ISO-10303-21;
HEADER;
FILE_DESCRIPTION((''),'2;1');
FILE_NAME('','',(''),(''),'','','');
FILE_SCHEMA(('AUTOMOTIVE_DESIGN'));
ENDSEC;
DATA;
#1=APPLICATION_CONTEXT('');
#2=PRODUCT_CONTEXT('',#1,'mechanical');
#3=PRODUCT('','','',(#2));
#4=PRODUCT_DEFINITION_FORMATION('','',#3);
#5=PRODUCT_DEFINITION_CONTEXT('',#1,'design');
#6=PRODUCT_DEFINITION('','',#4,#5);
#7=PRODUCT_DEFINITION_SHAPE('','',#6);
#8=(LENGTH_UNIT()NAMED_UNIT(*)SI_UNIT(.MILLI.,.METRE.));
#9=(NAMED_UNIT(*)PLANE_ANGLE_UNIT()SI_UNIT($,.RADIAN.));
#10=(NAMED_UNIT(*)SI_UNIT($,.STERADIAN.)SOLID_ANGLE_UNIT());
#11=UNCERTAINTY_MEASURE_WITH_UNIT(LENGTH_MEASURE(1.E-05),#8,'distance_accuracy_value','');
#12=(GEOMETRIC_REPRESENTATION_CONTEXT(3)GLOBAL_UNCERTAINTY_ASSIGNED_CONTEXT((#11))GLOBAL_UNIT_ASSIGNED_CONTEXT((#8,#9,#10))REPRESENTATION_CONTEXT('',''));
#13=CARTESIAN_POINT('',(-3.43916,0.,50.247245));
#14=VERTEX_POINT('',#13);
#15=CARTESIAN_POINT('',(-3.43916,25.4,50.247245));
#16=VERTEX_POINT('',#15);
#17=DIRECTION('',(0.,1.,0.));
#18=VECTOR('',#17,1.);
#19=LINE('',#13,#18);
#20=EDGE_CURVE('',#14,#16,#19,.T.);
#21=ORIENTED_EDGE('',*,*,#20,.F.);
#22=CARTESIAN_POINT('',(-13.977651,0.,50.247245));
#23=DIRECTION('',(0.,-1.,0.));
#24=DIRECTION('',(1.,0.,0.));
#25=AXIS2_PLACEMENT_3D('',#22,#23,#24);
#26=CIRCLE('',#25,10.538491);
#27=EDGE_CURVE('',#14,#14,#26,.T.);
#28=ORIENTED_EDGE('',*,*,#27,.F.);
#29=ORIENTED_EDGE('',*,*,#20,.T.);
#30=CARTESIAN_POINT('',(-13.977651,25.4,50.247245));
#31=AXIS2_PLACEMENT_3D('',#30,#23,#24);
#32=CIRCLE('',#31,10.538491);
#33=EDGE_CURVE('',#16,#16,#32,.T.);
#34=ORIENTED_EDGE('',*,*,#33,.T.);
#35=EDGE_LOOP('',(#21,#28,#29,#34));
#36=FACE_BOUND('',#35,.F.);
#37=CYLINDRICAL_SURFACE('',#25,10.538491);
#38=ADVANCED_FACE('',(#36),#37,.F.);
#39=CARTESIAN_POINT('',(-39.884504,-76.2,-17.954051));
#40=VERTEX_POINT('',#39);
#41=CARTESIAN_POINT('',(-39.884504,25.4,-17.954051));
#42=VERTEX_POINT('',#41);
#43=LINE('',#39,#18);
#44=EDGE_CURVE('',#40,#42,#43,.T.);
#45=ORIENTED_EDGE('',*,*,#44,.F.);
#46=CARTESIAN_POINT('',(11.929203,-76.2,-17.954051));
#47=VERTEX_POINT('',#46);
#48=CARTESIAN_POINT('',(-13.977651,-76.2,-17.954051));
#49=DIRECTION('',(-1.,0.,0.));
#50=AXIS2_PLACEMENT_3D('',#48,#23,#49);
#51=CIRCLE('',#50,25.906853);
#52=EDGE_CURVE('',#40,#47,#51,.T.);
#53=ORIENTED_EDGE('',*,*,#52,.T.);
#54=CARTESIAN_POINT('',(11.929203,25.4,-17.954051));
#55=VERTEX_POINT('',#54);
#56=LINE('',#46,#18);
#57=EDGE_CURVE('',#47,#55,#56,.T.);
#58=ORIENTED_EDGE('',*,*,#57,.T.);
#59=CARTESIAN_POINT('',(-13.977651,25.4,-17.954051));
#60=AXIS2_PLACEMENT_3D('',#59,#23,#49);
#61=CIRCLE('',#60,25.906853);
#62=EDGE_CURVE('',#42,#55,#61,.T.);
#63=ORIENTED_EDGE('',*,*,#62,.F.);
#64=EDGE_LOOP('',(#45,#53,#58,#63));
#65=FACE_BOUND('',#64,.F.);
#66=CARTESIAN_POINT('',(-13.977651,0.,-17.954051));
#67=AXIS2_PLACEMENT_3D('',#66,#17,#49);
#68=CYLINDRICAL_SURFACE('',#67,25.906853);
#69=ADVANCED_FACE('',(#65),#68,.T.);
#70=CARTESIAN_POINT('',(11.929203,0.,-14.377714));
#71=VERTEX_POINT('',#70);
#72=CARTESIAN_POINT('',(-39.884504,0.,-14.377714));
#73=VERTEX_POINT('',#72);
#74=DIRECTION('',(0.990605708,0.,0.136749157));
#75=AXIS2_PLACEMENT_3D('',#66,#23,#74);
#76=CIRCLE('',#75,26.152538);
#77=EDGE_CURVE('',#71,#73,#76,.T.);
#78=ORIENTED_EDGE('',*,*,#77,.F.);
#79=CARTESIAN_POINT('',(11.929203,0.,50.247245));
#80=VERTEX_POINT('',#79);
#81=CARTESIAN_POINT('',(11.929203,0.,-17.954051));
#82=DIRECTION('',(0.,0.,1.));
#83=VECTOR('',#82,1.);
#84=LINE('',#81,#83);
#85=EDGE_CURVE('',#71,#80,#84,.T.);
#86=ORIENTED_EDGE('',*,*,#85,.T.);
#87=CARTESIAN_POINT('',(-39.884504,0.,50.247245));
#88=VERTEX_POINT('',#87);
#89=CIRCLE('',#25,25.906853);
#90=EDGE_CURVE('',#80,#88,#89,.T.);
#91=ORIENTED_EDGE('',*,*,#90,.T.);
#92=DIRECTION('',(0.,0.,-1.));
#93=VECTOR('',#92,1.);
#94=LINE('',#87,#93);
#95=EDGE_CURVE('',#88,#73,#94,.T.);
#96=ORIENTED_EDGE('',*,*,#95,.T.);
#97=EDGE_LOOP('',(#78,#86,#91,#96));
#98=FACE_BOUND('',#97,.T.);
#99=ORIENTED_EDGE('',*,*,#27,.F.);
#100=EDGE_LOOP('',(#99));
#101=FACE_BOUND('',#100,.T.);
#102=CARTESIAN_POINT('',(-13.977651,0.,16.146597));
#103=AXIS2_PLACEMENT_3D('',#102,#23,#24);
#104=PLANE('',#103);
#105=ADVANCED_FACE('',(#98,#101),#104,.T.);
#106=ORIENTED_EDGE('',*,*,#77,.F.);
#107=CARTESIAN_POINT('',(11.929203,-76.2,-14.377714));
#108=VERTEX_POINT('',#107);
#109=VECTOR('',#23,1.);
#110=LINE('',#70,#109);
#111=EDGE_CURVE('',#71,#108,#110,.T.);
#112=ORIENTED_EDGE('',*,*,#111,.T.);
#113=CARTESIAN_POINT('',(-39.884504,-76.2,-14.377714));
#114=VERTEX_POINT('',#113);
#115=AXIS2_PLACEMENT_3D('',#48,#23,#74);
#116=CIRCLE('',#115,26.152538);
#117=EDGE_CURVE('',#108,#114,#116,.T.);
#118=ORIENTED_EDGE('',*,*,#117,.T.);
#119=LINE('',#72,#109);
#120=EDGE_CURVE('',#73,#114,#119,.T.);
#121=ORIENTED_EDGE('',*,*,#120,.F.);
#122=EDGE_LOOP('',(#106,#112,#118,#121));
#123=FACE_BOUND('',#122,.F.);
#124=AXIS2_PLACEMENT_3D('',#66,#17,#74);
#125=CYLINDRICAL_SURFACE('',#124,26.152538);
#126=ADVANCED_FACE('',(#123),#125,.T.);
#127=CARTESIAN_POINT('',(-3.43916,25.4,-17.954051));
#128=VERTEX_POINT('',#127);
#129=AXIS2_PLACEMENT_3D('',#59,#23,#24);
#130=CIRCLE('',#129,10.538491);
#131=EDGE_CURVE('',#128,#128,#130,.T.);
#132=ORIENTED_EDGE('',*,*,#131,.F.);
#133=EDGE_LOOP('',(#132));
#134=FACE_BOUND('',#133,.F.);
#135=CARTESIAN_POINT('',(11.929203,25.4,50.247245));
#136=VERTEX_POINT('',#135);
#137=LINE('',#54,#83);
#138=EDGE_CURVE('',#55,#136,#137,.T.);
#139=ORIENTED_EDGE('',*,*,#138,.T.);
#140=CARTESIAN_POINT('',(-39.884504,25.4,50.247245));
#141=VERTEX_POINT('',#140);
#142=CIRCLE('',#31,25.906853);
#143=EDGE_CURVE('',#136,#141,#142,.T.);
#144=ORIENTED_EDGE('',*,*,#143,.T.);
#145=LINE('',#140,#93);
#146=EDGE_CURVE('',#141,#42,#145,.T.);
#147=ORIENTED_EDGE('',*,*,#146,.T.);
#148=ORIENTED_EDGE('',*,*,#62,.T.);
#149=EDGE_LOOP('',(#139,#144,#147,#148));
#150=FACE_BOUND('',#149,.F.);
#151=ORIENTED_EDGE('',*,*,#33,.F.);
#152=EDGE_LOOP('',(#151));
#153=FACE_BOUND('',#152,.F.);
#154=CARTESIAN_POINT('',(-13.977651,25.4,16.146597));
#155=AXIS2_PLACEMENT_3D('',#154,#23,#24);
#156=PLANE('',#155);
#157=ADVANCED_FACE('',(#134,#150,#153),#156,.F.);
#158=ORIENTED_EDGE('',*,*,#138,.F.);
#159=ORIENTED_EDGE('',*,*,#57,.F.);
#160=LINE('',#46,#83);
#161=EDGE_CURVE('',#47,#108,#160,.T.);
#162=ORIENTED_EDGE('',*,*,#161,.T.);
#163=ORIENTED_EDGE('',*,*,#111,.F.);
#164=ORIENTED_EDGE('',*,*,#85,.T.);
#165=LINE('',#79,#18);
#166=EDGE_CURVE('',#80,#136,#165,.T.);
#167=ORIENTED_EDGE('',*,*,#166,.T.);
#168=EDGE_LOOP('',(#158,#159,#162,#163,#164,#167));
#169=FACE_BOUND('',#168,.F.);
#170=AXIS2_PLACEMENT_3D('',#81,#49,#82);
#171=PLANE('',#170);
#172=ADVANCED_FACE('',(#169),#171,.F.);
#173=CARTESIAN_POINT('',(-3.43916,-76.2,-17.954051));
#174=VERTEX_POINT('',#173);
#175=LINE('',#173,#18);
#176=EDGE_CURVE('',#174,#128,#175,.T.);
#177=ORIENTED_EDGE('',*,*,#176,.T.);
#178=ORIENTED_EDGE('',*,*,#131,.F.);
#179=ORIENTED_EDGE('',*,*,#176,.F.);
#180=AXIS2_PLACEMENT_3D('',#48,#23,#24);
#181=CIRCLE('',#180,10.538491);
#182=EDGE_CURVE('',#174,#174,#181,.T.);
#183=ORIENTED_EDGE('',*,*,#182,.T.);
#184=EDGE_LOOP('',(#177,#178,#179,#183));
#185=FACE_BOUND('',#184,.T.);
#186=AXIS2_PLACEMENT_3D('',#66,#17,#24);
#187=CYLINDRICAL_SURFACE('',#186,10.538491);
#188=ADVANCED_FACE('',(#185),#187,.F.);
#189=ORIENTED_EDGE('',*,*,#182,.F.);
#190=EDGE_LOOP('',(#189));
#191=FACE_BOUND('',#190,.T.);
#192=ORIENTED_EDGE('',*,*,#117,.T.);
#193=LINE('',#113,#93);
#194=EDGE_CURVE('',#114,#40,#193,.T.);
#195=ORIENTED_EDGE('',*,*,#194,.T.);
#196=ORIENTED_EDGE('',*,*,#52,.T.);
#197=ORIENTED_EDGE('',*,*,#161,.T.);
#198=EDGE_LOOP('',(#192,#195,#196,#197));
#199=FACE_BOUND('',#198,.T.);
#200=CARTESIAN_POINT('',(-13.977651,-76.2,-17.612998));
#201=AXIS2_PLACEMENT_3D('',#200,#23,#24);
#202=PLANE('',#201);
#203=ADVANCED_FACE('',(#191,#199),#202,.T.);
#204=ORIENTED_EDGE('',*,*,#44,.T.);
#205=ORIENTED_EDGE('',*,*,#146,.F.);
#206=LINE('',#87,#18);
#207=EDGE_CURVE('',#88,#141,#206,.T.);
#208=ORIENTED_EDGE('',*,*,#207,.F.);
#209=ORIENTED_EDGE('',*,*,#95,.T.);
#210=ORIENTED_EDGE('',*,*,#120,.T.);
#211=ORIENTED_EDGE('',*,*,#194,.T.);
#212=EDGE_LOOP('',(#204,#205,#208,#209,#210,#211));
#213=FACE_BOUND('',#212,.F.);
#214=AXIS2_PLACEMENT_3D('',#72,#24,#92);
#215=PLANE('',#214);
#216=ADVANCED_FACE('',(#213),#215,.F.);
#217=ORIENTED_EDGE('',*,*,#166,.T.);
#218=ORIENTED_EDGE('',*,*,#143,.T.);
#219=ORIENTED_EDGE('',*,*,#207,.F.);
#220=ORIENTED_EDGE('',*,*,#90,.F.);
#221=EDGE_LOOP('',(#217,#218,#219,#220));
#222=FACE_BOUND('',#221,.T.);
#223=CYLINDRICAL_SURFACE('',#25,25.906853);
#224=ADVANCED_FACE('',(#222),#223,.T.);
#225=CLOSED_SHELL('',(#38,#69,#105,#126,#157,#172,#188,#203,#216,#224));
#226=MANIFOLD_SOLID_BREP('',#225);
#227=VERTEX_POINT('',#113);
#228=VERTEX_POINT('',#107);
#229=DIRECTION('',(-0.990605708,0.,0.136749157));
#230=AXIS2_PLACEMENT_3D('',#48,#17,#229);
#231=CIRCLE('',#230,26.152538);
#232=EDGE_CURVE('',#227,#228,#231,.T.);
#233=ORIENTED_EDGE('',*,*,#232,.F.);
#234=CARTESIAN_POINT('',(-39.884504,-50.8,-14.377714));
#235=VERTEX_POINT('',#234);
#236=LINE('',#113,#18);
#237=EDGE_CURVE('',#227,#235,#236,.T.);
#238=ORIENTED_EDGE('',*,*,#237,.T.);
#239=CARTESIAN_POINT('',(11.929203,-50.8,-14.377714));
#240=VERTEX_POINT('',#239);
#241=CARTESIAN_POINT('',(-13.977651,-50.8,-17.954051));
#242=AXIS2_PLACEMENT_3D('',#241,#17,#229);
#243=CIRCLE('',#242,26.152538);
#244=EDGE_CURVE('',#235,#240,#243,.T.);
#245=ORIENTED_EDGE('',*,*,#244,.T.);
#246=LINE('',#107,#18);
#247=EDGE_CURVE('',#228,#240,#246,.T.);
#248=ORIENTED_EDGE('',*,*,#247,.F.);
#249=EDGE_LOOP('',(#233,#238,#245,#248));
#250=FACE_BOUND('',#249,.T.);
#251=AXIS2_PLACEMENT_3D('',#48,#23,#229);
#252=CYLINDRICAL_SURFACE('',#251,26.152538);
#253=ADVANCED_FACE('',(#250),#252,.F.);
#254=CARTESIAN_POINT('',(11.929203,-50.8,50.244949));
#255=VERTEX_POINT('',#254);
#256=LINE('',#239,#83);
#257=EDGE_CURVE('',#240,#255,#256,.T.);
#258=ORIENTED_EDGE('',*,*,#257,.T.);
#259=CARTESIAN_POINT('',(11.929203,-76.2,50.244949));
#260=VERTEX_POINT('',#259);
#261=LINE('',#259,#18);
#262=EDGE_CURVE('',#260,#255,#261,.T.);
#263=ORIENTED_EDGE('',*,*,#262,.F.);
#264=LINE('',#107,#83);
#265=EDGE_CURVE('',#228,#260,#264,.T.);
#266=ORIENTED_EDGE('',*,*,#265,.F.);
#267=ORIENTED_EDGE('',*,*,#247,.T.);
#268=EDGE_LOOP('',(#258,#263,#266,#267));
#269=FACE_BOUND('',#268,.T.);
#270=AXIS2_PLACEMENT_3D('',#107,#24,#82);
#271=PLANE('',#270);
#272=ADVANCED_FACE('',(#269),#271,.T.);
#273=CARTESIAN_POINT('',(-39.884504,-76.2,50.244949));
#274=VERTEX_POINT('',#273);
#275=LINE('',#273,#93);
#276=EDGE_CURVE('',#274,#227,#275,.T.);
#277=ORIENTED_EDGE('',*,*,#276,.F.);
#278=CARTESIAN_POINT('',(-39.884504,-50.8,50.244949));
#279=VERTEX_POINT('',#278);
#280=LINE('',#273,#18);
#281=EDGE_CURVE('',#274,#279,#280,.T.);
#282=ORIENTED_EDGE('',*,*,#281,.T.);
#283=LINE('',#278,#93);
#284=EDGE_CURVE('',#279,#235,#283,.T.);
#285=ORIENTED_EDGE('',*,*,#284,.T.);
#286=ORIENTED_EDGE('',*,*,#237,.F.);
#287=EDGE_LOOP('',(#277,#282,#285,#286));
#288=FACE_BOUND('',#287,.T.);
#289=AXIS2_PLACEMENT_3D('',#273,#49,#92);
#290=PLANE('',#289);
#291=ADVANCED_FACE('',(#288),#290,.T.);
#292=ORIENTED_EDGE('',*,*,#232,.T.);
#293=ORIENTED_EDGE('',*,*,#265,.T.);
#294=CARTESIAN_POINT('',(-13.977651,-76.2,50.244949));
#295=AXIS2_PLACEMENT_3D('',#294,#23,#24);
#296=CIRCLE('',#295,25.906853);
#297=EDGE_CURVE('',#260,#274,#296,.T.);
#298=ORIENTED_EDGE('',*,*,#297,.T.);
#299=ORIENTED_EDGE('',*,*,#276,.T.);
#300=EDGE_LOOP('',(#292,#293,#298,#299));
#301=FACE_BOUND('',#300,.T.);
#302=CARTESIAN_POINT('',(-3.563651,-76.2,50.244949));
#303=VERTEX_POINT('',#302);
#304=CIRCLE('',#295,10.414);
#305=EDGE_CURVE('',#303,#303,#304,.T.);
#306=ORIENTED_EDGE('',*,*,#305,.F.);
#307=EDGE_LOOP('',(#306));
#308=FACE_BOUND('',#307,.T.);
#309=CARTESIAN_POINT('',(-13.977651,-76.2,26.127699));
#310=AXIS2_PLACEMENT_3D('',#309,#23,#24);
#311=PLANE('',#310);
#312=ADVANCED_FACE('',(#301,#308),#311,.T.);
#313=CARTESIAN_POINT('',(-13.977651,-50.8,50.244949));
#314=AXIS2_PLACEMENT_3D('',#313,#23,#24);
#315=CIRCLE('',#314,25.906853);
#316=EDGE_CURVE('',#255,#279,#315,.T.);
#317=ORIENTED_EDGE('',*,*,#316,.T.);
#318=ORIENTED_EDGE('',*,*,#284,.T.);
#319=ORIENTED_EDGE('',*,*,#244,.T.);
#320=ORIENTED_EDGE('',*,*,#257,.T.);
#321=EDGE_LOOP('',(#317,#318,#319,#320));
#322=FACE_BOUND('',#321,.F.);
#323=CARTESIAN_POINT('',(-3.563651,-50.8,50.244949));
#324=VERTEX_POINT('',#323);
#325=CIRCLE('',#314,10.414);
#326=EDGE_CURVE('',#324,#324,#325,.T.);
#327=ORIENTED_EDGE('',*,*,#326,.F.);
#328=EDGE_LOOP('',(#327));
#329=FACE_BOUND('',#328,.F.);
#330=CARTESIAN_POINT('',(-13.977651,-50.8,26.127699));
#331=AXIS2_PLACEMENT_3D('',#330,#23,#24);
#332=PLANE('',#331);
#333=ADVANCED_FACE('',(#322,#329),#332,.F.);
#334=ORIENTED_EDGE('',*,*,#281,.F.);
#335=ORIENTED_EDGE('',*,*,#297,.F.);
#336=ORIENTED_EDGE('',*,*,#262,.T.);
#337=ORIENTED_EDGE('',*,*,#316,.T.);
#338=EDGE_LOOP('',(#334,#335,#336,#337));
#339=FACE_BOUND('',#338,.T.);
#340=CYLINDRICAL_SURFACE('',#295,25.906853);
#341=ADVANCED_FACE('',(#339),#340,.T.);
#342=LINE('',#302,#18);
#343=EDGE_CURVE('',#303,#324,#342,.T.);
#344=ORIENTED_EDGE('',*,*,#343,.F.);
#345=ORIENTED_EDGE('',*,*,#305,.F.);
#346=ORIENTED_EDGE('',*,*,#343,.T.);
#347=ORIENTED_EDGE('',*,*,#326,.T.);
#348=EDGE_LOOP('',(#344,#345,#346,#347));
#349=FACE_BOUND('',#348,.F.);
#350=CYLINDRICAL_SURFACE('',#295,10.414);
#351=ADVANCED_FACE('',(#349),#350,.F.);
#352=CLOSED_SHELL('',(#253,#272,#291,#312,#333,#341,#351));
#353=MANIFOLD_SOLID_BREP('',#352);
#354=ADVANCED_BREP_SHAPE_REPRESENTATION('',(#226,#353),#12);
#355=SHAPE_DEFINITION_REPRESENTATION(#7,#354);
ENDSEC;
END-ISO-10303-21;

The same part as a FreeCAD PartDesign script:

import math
import FreeCAD as App
import Part
import Sketcher
from FreeCAD import Vector
Q = App.Units.Quantity

doc = App.newDocument("Part")
body = doc.addObject("PartDesign::Body", "Body")

sketch1 = doc.addObject("Sketcher::SketchObject", "Sketch")
body.addObject(sketch1)
sketch1.AttachmentSupport = (doc.XZ_Plane, [""])
sketch1.MapMode = "FlatFace"
sketch1.addGeometry([
    Part.LineSegment(Vector(-39.884504, 50.247245, 0), Vector(-39.884504, -17.954051, 0)),
    Part.ArcOfCircle(Part.Circle(Vector(-13.977651, -17.954051, 0), Vector(0, 0, 1), 25.906853), math.radians(180), math.radians(360)),
    Part.LineSegment(Vector(11.929203, -17.954051, 0), Vector(11.929203, 50.247245, 0)),
    Part.ArcOfCircle(Part.Circle(Vector(-13.977651, 50.247245, 0), Vector(0, 0, 1), 25.906853), math.radians(0), math.radians(180)),
    Part.Circle(Vector(-13.977651, -17.954051, 0), Vector(0, 0, 1), 10.538491),
    Part.Circle(Vector(-13.977651, 50.247245, 0), Vector(0, 0, 1), 10.538491),
], False)
sketch1.addConstraint([
    Sketcher.Constraint("Tangent", 0, 2, 1, 1),
    Sketcher.Constraint("Tangent", 1, 2, 2, 1),
    Sketcher.Constraint("Tangent", 2, 2, 3, 1),
    Sketcher.Constraint("Tangent", 3, 2, 0, 1),
    Sketcher.Constraint("Vertical", 0),
    Sketcher.Constraint("Vertical", 2),
    Sketcher.Constraint("Coincident", 4, 3, 1, 3),
    Sketcher.Constraint("Coincident", 5, 3, 3, 3),
    Sketcher.Constraint("Equal", 4, 5),
    Sketcher.Constraint("Diameter", 4, 21.076982),
    Sketcher.Constraint("Radius", 1, 25.906853),
    Sketcher.Constraint("DistanceY", 0, 2, 0, 1, 68.201296),
    Sketcher.Constraint("DistanceX", 1, 3, -1, 1, 13.977651),
    Sketcher.Constraint("DistanceY", 1, 3, -1, 1, 17.954051),
])
pad1 = doc.addObject("PartDesign::Pad", "Pad")
body.addObject(pad1)
pad1.Profile = sketch1
pad1.Length = Q("1 in")
pad1.Reversed = True

sketch2 = doc.addObject("Sketcher::SketchObject", "Sketch001")
body.addObject(sketch2)
sketch2.AttachmentSupport = (doc.XZ_Plane, [""])
sketch2.MapMode = "FlatFace"
sketch2.addGeometry([
    Part.LineSegment(Vector(11.929203, -17.954051, 0), Vector(11.929203, -14.377714, 0)),
    Part.ArcOfCircle(Part.Circle(Vector(-13.977651, -17.954051, 0), Vector(0, 0, 1), 26.152538), math.radians(7.859777), math.radians(172.140223)),
    Part.LineSegment(Vector(-39.884504, -14.377714, 0), Vector(-39.884504, -17.954051, 0)),
    Part.ArcOfCircle(Part.Circle(Vector(-13.977651, -17.954051, 0), Vector(0, 0, 1), 25.906853), math.radians(180), math.radians(360)),
    Part.Circle(Vector(-13.977651, -17.954051, 0), Vector(0, 0, 1), 10.538491),
], False)
sketch2.addConstraint([
    Sketcher.Constraint("Coincident", 0, 2, 1, 1),
    Sketcher.Constraint("Coincident", 1, 2, 2, 1),
    Sketcher.Constraint("Tangent", 2, 2, 3, 1),
    Sketcher.Constraint("Tangent", 3, 2, 0, 1),
    Sketcher.Constraint("Vertical", 0),
    Sketcher.Constraint("Vertical", 2),
    Sketcher.Constraint("Coincident", 3, 3, 1, 3),
    Sketcher.Constraint("Coincident", 4, 3, 1, 3),
    Sketcher.Constraint("Diameter", 4, 21.076982),
    Sketcher.Constraint("Radius", 1, 26.152538),
    Sketcher.Constraint("Radius", 3, 25.906853),
    Sketcher.Constraint("DistanceX", 1, 3, -1, 1, 13.977651),
    Sketcher.Constraint("DistanceY", 1, 3, -1, 1, 17.954051),
])
pad2 = doc.addObject("PartDesign::Pad", "Pad001")
body.addObject(pad2)
pad2.Profile = sketch2
pad2.Length = Q("3 in")
body2 = doc.addObject("PartDesign::Body", "Body001")

sketch3 = doc.addObject("Sketcher::SketchObject", "Sketch002")
body2.addObject(sketch3)
sketch3.AttachmentSupport = (doc.getObject("XZ_Plane001"), [""])
sketch3.MapMode = "FlatFace"
sketch3.AttachmentOffset = App.Placement(Vector(0, 0, 3 * 25.4), App.Rotation())
sketch3.addGeometry([
    Part.ArcOfCircle(Part.Circle(Vector(-13.977651, -17.954051, 0), Vector(0, 0, 1), 26.152538), math.radians(7.859777), math.radians(172.140223)),
    Part.LineSegment(Vector(11.929203, -14.377714, 0), Vector(11.929203, 50.244949, 0)),
    Part.ArcOfCircle(Part.Circle(Vector(-13.977651, 50.244949, 0), Vector(0, 0, 1), 25.906853), math.radians(0), math.radians(180)),
    Part.LineSegment(Vector(-39.884504, 50.244949, 0), Vector(-39.884504, -14.377714, 0)),
    Part.Circle(Vector(-13.977651, 50.244949, 0), Vector(0, 0, 1), 10.414),
], False)
sketch3.addConstraint([
    Sketcher.Constraint("Coincident", 0, 1, 1, 1),
    Sketcher.Constraint("Tangent", 1, 2, 2, 1),
    Sketcher.Constraint("Tangent", 2, 2, 3, 1),
    Sketcher.Constraint("Coincident", 3, 2, 0, 2),
    Sketcher.Constraint("Vertical", 1),
    Sketcher.Constraint("Vertical", 3),
    Sketcher.Constraint("Coincident", 4, 3, 2, 3),
    Sketcher.Constraint("Horizontal", 0, 1, 3, 2),
    Sketcher.Constraint("Diameter", 4, Q("0.82 in")),
    Sketcher.Constraint("DistanceY", 0, 3, 2, 3, Q("2.685 in")),
    Sketcher.Constraint("Radius", 0, 26.152538),
    Sketcher.Constraint("Radius", 2, 25.906853),
    Sketcher.Constraint("DistanceX", 0, 3, -1, 1, 13.977651),
    Sketcher.Constraint("DistanceY", 0, 3, -1, 1, 17.954051),
])
pad3 = doc.addObject("PartDesign::Pad", "Pad002")
body2.addObject(pad3)
pad3.Profile = sketch3
pad3.Length = Q("1 in")
pad3.Reversed = True

doc.recompute()
